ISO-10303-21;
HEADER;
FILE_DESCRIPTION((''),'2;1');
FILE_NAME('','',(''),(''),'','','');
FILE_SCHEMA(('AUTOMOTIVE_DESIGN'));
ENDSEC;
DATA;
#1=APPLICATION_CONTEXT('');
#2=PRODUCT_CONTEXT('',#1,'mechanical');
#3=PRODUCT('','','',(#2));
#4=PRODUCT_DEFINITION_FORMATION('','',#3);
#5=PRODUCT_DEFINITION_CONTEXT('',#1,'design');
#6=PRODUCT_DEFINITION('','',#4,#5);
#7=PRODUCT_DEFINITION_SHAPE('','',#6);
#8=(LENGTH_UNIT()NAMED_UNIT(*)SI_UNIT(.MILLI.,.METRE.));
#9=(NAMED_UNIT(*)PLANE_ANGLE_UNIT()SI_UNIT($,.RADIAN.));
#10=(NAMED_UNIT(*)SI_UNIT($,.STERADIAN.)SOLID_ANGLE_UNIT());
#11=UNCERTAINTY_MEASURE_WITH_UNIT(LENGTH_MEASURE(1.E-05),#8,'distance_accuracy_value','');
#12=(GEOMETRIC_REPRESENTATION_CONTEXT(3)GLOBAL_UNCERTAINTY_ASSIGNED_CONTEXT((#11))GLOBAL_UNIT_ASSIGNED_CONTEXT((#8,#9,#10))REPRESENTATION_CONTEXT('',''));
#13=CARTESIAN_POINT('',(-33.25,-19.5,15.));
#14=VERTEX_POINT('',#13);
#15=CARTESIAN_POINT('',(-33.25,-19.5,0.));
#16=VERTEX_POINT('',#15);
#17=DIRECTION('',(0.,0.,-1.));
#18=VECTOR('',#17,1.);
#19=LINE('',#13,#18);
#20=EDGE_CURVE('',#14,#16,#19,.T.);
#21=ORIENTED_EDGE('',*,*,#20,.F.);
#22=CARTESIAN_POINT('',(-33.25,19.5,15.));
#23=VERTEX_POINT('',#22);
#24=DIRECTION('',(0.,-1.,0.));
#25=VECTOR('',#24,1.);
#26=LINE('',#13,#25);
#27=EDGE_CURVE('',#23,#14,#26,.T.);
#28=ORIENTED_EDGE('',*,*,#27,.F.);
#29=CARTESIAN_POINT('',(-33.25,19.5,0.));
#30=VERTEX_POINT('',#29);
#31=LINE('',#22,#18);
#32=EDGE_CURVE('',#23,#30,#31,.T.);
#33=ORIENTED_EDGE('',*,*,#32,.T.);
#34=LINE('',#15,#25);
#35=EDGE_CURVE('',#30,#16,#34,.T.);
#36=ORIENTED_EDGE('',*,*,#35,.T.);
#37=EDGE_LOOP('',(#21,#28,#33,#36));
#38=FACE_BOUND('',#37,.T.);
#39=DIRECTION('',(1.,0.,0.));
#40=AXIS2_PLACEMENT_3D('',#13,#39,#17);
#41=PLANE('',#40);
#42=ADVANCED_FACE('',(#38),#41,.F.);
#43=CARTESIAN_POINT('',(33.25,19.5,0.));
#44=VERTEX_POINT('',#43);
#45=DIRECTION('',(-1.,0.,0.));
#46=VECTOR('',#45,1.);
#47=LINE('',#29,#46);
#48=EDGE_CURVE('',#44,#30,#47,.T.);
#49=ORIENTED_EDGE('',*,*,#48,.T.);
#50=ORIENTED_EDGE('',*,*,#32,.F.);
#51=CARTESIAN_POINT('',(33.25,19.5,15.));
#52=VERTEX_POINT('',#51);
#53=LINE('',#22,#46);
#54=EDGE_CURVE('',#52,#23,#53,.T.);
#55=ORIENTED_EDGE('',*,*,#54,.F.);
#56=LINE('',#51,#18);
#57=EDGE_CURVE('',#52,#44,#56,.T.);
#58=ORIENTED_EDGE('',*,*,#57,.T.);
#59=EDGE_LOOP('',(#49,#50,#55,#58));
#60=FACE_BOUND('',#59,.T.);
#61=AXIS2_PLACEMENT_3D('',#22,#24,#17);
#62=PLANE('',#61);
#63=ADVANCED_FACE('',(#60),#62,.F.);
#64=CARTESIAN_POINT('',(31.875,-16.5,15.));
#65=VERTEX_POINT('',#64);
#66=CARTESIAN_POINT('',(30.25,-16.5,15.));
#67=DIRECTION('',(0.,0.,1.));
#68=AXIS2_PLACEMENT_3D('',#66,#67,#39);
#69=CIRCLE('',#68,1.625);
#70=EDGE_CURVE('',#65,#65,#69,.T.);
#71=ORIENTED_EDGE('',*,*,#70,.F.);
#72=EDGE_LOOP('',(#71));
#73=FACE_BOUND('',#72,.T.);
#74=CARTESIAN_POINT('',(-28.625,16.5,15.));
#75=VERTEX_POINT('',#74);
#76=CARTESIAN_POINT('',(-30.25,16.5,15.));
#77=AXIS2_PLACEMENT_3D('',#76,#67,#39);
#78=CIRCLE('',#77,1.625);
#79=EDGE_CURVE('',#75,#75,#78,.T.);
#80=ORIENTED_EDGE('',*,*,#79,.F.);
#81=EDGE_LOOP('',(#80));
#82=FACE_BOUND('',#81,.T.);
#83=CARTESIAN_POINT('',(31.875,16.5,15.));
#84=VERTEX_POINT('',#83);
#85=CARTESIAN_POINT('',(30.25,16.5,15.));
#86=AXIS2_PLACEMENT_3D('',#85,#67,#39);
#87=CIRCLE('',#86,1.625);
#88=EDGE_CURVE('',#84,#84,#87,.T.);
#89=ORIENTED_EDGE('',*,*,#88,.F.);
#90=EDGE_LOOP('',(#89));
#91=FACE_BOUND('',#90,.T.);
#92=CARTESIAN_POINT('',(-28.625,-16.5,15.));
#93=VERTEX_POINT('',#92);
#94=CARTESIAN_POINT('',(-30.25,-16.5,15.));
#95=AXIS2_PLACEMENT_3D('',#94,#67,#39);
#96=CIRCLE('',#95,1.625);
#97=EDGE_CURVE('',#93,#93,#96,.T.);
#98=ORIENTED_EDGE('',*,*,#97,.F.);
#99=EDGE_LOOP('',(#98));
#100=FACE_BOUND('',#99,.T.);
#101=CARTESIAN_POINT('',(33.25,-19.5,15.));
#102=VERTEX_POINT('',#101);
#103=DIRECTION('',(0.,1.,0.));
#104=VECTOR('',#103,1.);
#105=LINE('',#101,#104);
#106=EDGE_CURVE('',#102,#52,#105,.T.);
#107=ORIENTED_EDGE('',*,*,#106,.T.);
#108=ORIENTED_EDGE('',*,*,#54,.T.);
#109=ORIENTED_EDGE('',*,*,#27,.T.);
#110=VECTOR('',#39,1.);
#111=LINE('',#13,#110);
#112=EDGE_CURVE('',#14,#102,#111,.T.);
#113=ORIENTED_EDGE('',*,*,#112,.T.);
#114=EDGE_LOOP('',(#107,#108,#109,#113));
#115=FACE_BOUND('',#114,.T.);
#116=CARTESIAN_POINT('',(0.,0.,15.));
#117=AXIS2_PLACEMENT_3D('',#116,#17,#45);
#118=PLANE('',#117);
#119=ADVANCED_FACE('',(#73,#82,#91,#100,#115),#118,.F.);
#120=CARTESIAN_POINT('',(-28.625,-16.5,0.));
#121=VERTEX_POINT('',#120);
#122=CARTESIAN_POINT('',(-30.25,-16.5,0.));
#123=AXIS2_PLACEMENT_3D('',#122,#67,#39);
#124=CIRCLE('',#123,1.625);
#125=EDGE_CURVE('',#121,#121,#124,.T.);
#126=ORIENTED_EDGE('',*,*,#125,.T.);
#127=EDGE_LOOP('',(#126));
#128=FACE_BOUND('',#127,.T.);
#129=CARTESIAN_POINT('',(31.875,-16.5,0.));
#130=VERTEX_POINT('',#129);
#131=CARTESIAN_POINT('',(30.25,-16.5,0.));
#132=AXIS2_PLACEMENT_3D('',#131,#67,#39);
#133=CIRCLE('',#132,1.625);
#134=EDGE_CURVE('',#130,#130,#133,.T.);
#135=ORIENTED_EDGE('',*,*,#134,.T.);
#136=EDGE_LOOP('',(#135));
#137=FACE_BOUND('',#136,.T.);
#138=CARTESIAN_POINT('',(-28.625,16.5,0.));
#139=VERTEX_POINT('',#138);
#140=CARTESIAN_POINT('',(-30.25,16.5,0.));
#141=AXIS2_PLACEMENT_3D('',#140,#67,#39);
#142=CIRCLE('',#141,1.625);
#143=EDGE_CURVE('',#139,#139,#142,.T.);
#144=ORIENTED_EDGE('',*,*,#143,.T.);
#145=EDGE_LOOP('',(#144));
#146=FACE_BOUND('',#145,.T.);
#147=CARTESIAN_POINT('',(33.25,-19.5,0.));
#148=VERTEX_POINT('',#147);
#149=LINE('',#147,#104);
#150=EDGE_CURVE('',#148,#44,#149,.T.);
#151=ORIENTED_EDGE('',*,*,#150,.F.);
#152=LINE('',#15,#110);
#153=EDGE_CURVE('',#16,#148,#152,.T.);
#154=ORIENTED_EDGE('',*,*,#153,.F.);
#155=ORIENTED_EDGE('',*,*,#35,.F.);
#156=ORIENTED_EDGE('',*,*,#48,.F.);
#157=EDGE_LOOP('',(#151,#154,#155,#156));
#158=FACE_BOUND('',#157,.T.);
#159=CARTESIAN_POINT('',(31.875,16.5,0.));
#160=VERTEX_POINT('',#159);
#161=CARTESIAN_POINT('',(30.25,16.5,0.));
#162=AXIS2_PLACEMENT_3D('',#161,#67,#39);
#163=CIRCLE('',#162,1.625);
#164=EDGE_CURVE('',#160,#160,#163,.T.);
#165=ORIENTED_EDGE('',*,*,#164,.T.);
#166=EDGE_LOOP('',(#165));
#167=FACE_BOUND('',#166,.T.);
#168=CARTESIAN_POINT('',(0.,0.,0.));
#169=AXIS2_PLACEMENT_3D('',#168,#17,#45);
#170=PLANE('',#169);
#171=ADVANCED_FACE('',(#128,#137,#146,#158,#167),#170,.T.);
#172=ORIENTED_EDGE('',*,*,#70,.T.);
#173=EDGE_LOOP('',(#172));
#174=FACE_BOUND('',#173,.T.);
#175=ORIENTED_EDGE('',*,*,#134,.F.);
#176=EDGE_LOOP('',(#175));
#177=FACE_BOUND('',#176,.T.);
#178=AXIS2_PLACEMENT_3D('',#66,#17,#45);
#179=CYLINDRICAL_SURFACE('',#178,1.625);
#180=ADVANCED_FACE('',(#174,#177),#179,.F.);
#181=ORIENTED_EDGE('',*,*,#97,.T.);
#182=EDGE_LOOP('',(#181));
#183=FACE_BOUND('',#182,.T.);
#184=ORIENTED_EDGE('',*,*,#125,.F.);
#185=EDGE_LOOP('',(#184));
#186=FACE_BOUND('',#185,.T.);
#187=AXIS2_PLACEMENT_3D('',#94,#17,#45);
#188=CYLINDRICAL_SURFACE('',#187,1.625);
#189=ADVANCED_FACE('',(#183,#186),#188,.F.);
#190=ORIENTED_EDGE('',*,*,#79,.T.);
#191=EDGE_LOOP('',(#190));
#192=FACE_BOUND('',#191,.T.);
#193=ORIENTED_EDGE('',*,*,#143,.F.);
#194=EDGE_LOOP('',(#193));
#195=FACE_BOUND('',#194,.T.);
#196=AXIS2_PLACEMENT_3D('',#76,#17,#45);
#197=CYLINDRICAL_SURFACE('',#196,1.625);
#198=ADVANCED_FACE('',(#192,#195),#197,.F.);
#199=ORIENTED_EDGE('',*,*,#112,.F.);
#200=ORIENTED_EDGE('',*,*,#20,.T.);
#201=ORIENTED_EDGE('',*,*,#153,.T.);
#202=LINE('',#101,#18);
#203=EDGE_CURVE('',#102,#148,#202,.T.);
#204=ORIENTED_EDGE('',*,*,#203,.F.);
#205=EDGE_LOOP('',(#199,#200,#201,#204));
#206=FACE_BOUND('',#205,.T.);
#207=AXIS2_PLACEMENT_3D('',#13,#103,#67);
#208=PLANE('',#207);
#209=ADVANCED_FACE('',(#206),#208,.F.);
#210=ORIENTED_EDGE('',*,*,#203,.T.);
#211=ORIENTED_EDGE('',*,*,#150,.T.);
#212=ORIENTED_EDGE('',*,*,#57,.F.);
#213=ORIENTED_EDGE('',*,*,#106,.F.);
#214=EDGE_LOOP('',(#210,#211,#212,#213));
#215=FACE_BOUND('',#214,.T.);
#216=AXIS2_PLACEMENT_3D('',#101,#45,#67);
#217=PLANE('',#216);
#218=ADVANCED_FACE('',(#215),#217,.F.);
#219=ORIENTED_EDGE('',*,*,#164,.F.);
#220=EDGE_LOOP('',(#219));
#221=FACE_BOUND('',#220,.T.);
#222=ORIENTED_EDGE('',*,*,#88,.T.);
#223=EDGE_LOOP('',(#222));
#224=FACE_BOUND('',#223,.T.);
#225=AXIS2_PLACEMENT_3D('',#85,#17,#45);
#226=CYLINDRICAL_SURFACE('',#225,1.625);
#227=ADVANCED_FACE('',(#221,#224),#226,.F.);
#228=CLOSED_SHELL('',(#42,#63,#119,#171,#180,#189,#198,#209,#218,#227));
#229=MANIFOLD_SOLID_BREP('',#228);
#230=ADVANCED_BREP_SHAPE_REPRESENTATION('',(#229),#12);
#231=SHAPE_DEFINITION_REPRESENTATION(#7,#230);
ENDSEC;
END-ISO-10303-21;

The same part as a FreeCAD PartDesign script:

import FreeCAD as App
import Part
import Sketcher

V = App.Vector


def add_polygon(sketch, points):
    """Adds a closed chain of lines whose ends are joined by coincident constraints."""
    first, n = sketch.GeometryCount, len(points)
    for a, b in zip(points, points[1:] + points[:1]):
        sketch.addGeometry(Part.LineSegment(App.Vector(*a, 0), App.Vector(*b, 0)), False)
    for i in range(n):
        sketch.addConstraint(Sketcher.Constraint("Coincident", first + i, 2, first + (i + 1) % n, 1))

doc = App.newDocument("Part")
body = doc.addObject("PartDesign::Body", "Body")

# Sketch on XY plane
sketch1 = body.newObject("Sketcher::SketchObject", "Sketch")
sketch1.AttachmentSupport = (doc.getObject("XY_Plane"), [""])
sketch1.MapMode = "FlatFace"
add_polygon(sketch1, [(-33.25, 19.5), (-33.25, -19.5), (33.25, -19.5), (33.25, 19.5)])  # lines 0-3
sketch1.addGeometry(Part.Circle(V(-30.25, -16.5, 0), V(0, 0, 1), 1.625), False)  # 4
sketch1.addGeometry(Part.Circle(V(30.25, -16.5, 0), V(0, 0, 1), 1.625), False)  # 5
sketch1.addGeometry(Part.Circle(V(-30.25, 16.5, 0), V(0, 0, 1), 1.625), False)  # 6
sketch1.addGeometry(Part.Circle(V(30.25, 16.5, 0), V(0, 0, 1), 1.625), False)  # 7
sketch1.addConstraint([
    Sketcher.Constraint("Vertical", 0),
    Sketcher.Constraint("Horizontal", 1),
    Sketcher.Constraint("Vertical", 2),
    Sketcher.Constraint("Horizontal", 3),
    Sketcher.Constraint("Equal", 4, 5),
    Sketcher.Constraint("Equal", 5, 6),
    Sketcher.Constraint("Equal", 6, 7),
    Sketcher.Constraint("Symmetric", 5, 3, 6, 3, -1, 1),
    Sketcher.Constraint("Symmetric", 4, 3, 7, 3, -1, 1),
    Sketcher.Constraint("Symmetric", 0, 2, 2, 2, -1, 1),
    Sketcher.Constraint("Symmetric", 4, 3, 5, 3, -2),
    Sketcher.Constraint("Diameter", 4, 3.25),
    Sketcher.Constraint("DistanceY", 0, 2, 0, 1, 39.0),
    Sketcher.Constraint("DistanceX", 1, 1, 1, 2, 66.5),
    Sketcher.Constraint("DistanceY", 4, 3, 6, 3, 33.0),
    Sketcher.Constraint("DistanceX", 0, 2, 4, 3, 3.0),
])
pad1 = body.newObject("PartDesign::Pad", "Pad")
pad1.Profile = sketch1
pad1.Length = 15

doc.recompute()
